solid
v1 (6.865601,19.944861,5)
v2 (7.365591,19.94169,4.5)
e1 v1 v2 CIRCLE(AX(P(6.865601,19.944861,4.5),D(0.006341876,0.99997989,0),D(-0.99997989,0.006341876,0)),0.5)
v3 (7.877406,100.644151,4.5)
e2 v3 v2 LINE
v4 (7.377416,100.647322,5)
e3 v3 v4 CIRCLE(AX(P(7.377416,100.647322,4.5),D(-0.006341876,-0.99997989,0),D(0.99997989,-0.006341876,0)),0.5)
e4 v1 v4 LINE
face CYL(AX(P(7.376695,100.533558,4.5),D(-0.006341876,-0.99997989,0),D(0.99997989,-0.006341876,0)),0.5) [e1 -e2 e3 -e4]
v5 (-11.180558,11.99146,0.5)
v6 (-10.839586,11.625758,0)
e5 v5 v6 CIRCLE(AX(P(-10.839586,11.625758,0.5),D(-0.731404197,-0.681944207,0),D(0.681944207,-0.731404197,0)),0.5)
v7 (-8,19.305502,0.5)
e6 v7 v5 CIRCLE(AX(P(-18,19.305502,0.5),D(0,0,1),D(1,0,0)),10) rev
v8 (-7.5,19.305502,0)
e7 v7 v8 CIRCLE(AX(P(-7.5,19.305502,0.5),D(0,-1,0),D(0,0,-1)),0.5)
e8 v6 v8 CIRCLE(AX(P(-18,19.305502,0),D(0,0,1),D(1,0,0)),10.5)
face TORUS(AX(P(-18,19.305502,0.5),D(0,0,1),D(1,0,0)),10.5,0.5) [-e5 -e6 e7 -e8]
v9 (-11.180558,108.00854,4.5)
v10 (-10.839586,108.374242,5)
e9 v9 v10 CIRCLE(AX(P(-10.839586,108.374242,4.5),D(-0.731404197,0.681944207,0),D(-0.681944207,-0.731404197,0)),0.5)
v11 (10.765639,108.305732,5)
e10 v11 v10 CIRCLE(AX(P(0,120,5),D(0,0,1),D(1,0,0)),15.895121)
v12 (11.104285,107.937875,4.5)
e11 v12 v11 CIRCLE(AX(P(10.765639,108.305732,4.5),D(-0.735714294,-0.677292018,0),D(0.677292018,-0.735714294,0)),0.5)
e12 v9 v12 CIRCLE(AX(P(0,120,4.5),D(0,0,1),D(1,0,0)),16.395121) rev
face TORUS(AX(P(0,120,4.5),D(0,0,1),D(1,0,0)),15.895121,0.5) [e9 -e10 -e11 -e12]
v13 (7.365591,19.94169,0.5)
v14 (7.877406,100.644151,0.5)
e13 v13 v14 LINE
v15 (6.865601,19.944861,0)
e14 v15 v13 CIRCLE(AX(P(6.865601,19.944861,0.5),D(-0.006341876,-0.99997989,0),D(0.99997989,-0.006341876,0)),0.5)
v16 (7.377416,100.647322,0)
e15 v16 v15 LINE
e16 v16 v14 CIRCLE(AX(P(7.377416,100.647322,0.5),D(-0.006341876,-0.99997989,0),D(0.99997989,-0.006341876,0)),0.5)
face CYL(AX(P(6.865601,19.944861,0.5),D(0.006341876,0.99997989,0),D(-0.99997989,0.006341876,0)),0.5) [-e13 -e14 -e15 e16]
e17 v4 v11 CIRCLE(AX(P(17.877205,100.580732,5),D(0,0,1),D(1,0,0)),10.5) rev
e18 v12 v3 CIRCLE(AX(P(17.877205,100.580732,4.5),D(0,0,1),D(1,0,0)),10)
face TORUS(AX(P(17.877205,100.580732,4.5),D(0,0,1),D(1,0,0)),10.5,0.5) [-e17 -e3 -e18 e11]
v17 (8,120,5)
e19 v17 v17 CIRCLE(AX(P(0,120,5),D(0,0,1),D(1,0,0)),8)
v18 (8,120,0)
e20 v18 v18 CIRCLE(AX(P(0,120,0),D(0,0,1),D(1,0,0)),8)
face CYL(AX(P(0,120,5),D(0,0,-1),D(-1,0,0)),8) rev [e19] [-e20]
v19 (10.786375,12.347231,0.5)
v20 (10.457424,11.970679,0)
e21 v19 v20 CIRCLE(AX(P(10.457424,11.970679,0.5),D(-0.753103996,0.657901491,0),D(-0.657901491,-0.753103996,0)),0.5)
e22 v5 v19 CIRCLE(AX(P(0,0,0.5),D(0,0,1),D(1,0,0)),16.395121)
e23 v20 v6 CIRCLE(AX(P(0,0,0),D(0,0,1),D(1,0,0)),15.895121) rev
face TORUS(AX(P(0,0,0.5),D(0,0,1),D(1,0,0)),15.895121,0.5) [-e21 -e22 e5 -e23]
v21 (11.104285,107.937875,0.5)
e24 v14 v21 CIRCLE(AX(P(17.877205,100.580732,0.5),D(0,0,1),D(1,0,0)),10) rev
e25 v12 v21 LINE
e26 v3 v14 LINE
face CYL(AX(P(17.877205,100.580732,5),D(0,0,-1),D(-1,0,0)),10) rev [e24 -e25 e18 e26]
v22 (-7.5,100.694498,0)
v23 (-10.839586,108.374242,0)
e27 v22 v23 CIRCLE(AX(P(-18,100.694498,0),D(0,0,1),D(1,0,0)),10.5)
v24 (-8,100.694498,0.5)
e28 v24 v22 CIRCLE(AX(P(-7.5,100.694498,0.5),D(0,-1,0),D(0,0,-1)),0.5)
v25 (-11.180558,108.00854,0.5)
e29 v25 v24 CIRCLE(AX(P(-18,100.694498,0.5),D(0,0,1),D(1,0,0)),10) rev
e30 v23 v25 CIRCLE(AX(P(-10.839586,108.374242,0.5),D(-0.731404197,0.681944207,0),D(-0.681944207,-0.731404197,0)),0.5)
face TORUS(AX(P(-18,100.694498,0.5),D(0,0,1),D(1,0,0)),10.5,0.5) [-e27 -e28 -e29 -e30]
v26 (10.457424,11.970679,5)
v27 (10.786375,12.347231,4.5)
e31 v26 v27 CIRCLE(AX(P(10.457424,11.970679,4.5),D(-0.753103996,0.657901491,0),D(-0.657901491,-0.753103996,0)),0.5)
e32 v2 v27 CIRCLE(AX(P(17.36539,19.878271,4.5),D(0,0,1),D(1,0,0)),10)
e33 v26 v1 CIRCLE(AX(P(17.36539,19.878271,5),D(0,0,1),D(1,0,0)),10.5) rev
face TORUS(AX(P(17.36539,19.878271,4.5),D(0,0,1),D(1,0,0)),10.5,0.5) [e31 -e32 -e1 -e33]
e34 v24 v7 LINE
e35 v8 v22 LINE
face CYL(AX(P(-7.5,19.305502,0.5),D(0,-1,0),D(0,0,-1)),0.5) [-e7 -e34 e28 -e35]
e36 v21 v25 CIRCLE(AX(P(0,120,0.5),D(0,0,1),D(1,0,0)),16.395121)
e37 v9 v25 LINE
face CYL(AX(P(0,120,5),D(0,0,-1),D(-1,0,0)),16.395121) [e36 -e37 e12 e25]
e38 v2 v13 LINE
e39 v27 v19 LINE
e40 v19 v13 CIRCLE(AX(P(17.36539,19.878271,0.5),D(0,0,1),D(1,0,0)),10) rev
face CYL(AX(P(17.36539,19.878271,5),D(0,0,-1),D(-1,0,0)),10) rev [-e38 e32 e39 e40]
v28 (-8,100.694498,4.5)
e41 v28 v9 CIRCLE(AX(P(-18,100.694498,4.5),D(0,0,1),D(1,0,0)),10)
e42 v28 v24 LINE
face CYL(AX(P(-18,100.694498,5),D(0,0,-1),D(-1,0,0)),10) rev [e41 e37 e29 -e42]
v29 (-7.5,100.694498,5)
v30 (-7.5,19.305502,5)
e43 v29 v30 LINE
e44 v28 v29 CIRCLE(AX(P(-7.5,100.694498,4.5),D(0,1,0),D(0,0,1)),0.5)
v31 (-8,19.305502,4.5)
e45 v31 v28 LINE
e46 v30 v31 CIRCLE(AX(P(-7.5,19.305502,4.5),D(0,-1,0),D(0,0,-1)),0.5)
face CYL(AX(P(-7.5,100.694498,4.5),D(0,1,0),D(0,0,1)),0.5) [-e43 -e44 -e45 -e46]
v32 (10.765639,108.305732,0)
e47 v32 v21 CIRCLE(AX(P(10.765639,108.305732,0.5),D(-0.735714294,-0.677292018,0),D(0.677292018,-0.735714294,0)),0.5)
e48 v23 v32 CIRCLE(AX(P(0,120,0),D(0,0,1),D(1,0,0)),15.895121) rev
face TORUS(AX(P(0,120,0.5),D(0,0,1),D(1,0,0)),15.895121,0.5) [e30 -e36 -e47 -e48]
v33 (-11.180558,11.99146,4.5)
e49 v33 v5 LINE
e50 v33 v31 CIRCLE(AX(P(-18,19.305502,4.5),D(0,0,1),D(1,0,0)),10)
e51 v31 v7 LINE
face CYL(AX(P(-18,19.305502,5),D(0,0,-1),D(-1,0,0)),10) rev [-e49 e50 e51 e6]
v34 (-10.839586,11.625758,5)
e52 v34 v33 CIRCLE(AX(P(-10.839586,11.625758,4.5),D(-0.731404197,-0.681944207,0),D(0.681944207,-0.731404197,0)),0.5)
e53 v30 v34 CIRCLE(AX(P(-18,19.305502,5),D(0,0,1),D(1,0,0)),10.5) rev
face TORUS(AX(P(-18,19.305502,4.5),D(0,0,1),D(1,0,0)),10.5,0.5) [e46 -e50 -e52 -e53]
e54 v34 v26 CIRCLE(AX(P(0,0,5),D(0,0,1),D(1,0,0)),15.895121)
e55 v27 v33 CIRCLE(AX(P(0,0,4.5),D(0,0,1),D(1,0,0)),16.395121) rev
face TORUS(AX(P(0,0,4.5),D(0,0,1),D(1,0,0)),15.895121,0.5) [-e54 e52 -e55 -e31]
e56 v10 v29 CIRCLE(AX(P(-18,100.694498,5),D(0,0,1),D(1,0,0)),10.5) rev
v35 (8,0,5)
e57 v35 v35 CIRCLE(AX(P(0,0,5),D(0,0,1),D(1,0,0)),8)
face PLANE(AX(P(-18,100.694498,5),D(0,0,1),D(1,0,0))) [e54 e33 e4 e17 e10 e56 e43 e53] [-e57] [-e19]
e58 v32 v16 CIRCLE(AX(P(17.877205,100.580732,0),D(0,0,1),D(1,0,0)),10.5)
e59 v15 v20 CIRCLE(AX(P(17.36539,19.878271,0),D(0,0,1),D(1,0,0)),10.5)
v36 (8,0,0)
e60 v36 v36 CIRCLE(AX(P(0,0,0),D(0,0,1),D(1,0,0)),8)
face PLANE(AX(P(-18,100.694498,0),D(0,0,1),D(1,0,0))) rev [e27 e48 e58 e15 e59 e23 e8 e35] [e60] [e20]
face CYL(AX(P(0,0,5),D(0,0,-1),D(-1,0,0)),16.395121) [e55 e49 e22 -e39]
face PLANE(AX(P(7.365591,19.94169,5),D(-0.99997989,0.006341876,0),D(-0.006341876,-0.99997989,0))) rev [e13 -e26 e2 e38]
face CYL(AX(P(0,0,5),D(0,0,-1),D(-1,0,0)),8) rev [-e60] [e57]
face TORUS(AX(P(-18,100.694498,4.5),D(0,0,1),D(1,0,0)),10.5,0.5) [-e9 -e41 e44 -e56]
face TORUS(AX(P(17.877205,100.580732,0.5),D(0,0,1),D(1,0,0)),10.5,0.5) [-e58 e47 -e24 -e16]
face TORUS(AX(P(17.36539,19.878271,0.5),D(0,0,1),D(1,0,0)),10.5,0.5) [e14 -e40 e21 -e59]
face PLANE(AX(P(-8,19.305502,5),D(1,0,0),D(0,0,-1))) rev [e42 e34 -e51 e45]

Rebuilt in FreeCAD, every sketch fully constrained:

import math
import FreeCAD as App
import Part
import Sketcher
Q = App.Units.Quantity


def edges_at(feature, points):
    """Names of the edges that pass closest to the given points."""
    edges = feature.Shape.Edges
    near = lambda p: min(range(len(edges)), key=lambda i: edges[i].distToShape(Part.Vertex(*p))[0])
    return sorted({f"Edge{near(p) + 1}" for p in points})

doc = App.newDocument("Part")
params = doc.addObject("Spreadsheet::Sheet", "Params")
for row, (alias, value) in enumerate([
    ("sketch1_diameter", "16 mm"),
    ("sketch1_radius", "10 mm"),
    ("pad1_length", "5 mm"),
    ("fillet_radius", "0.5 mm"),
], start=1):
    params.set(f"A{row}", alias)
    params.set(f"B{row}", "=" + value)
    params.setAlias(f"B{row}", alias)

body = doc.addObject("PartDesign::Body", "Body")

sketch1 = body.newObject("Sketcher::SketchObject", "Sketch")
sketch1.AttachmentSupport = (doc.getObject("XY_Plane"), [""])
sketch1.MapMode = "FlatFace"
sketch1.addGeometry([
    Part.LineSegment(App.Vector(-8, 101, 0), App.Vector(-8, 19, 0)),
    Part.ArcOfCircle(Part.Circle(App.Vector(-18, 19, 0), App.Vector(0, 0, 1), 10), math.radians(-47), math.radians(0)),
    Part.ArcOfCircle(Part.Circle(App.Vector(0, 0, 0), App.Vector(0, 0, 1), 16), math.radians(133), math.radians(409)),
    Part.ArcOfCircle(Part.Circle(App.Vector(17, 20, 0), App.Vector(0, 0, 1), 10), math.radians(180), math.radians(229)),
    Part.LineSegment(App.Vector(7, 20, 0), App.Vector(8, 101, 0)),
    Part.ArcOfCircle(Part.Circle(App.Vector(18, 101, 0), App.Vector(0, 0, 1), 10), math.radians(133), math.radians(180)),
    Part.ArcOfCircle(Part.Circle(App.Vector(0, 120, 0), App.Vector(0, 0, 1), 16), math.radians(-47), math.radians(227)),
    Part.ArcOfCircle(Part.Circle(App.Vector(-18, 101, 0), App.Vector(0, 0, 1), 10), math.radians(0), math.radians(47)),
    Part.Circle(App.Vector(0, 0, 0), App.Vector(0, 0, 1), 8),
    Part.Circle(App.Vector(0, 120, 0), App.Vector(0, 0, 1), 8),
], False)
sketch1.addConstraint([
    Sketcher.Constraint("Tangent", 0, 2, 1, 2),
    Sketcher.Constraint("Tangent", 1, 1, 2, 1),
    Sketcher.Constraint("Tangent", 2, 2, 3, 2),
    Sketcher.Constraint("Tangent", 3, 1, 4, 1),
    Sketcher.Constraint("Tangent", 4, 2, 5, 2),
    Sketcher.Constraint("Tangent", 5, 1, 6, 1),
    Sketcher.Constraint("Tangent", 6, 2, 7, 2),
    Sketcher.Constraint("Tangent", 7, 1, 0, 1),
    Sketcher.Constraint("Vertical", 0),
    Sketcher.Constraint("Coincident", 2, 3, -1, 1),
    Sketcher.Constraint("Coincident", 8, 3, -1, 1),
    Sketcher.Constraint("Coincident", 9, 3, 6, 3),
    Sketcher.Constraint("Equal", 1, 3),
    Sketcher.Constraint("Equal", 3, 5),
    Sketcher.Constraint("Equal", 2, 6),
    Sketcher.Constraint("Equal", 5, 7),
    Sketcher.Constraint("Equal", 8, 9),
    Sketcher.Constraint("PointOnObject", 6, 3, -2),
    Sketcher.Constraint("Diameter", 8, Q("16 mm")),
    Sketcher.Constraint("Radius", 1, Q("10 mm")),
    Sketcher.Constraint("DistanceX", 1, 3, -1, 1, Q("18 mm")),
    Sketcher.Constraint("DistanceY", -1, 1, 6, 3, Q("120 mm")),
    Sketcher.Constraint("Radius", 2, Q("16.395121 mm")),
    Sketcher.Constraint("DistanceX", -1, 1, 3, 3, Q("17.36539 mm")),
    Sketcher.Constraint("DistanceY", -1, 1, 3, 1, Q("19.94169 mm")),
])
sketch1.setExpression("Constraints[18]", "Params.sketch1_diameter")
sketch1.setExpression("Constraints[19]", "Params.sketch1_radius")
pad1 = body.newObject("PartDesign::Pad", "Pad")
pad1.Profile = sketch1
pad1.setExpression("Length", "Params.pad1_length")
doc.recompute()

fillet = body.newObject("PartDesign::Fillet", "Fillet")
fillet.Base = (pad1, edges_at(pad1, [
    (0.265, -16.393, 0),
    (-8.83, 15.318, 0),
    (-8, 60, 0),
    (-8.83, 104.682, 0),
    (-8.83, 15.318, 5),
    (0.265, -16.393, 5),
    (8.248, 15.771, 5),
    (7.621, 60.293, 5),
    (8.732, 104.627, 5),
    (0.052, 136.395, 5),
    (-8.83, 104.682, 5),
    (0.052, 136.395, 0),
    (-8, 60, 5),
    (8.732, 104.627, 0),
    (7.621, 60.293, 0),
    (8.248, 15.771, 0),
]))
fillet.setExpression("Radius", "Params.fillet_radius")

doc.recompute()
